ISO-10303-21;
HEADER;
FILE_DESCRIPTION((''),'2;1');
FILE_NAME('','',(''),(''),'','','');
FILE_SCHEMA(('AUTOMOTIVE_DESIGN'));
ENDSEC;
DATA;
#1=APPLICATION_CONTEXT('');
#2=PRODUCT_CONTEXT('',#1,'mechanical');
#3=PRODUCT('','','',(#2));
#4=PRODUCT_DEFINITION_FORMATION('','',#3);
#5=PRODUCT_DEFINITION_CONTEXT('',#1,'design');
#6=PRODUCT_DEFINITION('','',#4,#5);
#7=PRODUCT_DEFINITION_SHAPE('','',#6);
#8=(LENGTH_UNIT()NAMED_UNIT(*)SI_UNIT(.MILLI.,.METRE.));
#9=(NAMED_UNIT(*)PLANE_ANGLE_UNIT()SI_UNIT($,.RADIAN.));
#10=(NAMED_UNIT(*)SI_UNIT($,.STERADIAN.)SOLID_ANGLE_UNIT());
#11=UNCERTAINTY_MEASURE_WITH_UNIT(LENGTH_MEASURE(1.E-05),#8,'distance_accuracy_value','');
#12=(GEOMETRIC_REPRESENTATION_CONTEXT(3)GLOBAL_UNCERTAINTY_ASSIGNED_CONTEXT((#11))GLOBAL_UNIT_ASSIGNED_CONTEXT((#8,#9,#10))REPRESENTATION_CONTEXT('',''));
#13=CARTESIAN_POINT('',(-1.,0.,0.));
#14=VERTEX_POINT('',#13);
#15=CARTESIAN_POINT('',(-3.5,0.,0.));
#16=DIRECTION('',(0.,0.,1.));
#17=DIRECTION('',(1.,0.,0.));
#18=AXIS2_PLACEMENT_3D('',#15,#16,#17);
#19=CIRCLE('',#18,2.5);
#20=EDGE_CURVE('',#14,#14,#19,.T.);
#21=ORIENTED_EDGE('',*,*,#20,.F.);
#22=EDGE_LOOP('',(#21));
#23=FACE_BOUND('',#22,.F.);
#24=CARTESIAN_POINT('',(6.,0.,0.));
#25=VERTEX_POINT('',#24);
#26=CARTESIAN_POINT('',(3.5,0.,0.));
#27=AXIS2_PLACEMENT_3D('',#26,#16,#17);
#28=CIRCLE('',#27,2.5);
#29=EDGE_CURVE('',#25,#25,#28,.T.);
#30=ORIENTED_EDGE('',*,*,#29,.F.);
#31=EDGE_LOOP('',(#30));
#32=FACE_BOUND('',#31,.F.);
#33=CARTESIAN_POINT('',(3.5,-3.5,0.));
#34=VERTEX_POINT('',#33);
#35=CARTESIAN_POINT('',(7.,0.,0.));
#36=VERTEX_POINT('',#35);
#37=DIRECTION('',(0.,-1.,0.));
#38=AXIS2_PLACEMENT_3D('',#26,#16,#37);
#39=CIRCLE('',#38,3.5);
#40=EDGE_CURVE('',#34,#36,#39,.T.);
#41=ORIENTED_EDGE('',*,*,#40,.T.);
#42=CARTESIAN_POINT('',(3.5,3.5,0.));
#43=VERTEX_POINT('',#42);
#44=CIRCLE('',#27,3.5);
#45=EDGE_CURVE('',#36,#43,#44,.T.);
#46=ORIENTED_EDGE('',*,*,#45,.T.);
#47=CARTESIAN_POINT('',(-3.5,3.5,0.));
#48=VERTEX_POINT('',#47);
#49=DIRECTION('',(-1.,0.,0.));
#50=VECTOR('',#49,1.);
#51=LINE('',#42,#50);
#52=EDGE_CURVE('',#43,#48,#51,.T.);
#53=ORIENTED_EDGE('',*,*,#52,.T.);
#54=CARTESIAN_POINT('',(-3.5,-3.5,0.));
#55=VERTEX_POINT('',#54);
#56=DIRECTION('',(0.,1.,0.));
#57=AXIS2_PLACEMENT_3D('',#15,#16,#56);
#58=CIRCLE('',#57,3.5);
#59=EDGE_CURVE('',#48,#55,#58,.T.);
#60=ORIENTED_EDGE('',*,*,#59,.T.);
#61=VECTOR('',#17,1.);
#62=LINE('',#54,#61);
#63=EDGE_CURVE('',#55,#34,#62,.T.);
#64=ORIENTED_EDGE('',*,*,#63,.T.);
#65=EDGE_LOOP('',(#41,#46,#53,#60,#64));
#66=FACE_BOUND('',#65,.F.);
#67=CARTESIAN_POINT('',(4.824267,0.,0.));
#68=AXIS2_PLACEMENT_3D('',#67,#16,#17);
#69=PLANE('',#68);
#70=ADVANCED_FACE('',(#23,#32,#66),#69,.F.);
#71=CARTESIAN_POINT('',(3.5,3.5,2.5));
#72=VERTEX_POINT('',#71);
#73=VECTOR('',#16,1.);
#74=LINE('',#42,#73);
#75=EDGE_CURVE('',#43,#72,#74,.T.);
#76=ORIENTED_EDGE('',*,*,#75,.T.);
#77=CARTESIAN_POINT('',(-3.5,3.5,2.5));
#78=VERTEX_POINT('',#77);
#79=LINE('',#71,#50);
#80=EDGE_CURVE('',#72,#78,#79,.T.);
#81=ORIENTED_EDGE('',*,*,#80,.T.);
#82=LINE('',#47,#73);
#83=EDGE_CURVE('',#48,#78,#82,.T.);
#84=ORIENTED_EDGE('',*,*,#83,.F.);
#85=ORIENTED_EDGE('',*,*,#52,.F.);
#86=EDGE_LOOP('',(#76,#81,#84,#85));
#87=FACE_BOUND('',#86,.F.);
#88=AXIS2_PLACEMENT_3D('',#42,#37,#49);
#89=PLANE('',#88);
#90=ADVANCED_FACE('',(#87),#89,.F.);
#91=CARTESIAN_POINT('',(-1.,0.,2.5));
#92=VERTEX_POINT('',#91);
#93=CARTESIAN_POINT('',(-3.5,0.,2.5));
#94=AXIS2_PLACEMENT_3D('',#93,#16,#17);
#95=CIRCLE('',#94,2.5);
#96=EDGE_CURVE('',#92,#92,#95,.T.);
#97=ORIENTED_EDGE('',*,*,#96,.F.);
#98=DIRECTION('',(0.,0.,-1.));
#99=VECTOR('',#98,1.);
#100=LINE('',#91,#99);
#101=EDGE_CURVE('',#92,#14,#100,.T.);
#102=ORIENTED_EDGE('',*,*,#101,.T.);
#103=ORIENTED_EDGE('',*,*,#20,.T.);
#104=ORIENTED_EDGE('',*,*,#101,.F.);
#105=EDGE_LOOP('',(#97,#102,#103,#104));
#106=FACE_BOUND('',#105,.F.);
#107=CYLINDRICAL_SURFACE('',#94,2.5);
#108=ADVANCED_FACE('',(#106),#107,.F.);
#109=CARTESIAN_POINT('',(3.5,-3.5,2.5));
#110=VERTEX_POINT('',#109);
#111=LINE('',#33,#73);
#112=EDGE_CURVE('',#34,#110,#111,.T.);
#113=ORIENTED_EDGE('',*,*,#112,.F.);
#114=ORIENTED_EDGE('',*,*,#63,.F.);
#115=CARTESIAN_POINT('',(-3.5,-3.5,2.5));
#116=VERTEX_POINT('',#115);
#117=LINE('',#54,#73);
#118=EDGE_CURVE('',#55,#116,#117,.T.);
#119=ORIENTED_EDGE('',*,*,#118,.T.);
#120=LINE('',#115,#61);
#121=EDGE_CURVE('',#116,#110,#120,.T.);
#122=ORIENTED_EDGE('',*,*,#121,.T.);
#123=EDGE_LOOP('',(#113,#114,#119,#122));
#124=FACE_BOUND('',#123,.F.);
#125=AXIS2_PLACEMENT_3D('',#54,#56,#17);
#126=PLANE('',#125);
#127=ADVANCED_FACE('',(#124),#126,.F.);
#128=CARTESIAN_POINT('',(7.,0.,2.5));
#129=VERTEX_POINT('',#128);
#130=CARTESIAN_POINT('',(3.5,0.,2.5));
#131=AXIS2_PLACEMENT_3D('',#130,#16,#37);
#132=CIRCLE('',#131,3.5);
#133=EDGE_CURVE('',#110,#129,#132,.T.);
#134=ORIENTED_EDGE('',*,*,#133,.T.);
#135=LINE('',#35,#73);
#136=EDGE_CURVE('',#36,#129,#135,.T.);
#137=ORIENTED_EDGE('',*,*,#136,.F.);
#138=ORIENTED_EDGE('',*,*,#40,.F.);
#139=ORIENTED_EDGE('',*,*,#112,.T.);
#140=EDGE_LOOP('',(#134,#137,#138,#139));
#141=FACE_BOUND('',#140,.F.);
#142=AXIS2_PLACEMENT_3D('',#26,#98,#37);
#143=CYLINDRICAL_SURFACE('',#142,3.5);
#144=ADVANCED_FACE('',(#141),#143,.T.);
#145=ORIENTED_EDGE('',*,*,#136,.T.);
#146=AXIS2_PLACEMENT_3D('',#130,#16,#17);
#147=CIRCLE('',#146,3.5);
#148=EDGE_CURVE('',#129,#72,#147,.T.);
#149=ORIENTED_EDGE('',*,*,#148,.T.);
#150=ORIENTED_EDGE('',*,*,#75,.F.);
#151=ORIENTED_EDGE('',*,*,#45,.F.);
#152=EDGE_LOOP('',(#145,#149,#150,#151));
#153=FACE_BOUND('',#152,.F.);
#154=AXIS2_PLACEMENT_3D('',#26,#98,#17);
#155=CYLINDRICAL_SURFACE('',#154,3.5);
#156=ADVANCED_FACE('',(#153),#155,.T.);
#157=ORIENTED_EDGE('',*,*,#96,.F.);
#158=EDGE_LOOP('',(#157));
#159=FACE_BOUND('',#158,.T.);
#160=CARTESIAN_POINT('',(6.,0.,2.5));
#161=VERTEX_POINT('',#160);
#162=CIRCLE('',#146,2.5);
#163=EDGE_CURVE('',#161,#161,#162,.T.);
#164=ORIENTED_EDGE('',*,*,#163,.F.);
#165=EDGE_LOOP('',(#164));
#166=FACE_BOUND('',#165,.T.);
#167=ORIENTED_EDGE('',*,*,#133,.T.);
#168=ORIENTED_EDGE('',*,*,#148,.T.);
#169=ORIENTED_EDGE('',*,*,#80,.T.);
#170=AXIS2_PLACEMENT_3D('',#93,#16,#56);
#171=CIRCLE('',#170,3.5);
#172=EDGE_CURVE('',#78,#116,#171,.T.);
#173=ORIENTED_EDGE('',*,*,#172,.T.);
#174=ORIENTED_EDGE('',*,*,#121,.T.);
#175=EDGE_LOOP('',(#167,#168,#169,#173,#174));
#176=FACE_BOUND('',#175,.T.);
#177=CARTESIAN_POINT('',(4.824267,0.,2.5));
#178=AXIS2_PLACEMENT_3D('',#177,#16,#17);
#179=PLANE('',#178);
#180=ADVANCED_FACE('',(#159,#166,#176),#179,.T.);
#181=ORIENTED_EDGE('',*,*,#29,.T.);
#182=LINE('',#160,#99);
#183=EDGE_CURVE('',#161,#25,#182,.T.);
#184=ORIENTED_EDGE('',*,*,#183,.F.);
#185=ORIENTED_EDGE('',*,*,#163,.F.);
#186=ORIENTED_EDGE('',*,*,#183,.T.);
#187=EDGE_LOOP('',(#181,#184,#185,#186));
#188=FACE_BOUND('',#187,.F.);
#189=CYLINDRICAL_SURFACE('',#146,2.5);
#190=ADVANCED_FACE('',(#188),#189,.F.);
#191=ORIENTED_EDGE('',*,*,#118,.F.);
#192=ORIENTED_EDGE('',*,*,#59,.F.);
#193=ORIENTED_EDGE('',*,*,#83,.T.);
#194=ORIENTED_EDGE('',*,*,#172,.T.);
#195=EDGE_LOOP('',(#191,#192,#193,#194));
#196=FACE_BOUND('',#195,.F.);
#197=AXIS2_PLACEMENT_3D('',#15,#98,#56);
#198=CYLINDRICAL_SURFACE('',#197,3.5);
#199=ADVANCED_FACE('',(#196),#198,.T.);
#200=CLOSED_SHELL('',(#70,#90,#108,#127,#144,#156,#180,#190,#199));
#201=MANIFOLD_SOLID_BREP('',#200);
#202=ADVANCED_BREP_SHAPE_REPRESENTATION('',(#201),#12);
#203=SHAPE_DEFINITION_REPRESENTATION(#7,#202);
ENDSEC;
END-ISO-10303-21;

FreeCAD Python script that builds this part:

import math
import FreeCAD as App
import Part
import Sketcher
from FreeCAD import Vector

doc = App.newDocument("Part")
body = doc.addObject("PartDesign::Body", "Body")

# Sketch on XY plane
sketch1 = body.newObject("Sketcher::SketchObject", "Sketch")
sketch1.AttachmentSupport = (doc.getObject("XY_Plane"), [""])
sketch1.MapMode = "FlatFace"
sketch1.addGeometry(Part.ArcOfCircle(Part.Circle(Vector(3.5, 0, 0), Vector(0, 0, 1), 3.5), math.radians(-90), math.radians(0)), False)
sketch1.addGeometry(Part.ArcOfCircle(Part.Circle(Vector(3.5, 0, 0), Vector(0, 0, 1), 3.5), math.radians(0), math.radians(90)), False)
sketch1.addGeometry(Part.LineSegment(Vector(3.5, 3.5, 0), Vector(-3.5, 3.5, 0)), False)
sketch1.addGeometry(Part.ArcOfCircle(Part.Circle(Vector(-3.5, 0, 0), Vector(0, 0, 1), 3.5), math.radians(90), math.radians(270)), False)
sketch1.addGeometry(Part.LineSegment(Vector(-3.5, -3.5, 0), Vector(3.5, -3.5, 0)), False)
sketch1.addConstraint(Sketcher.Constraint("Tangent", 0, 2, 1, 1))
sketch1.addConstraint(Sketcher.Constraint("Tangent", 1, 2, 2, 1))
sketch1.addConstraint(Sketcher.Constraint("Tangent", 2, 2, 3, 1))
sketch1.addConstraint(Sketcher.Constraint("Tangent", 3, 2, 4, 1))
sketch1.addConstraint(Sketcher.Constraint("Tangent", 4, 2, 0, 1))
sketch1.addConstraint(Sketcher.Constraint("Horizontal", 2))
sketch1.addConstraint(Sketcher.Constraint("Horizontal", 4))
sketch1.addConstraint(Sketcher.Constraint("Equal", 0, 1))
sketch1.addConstraint(Sketcher.Constraint("Symmetric", 0, 3, 3, 3, -1, 1))
sketch1.addConstraint(Sketcher.Constraint("PointOnObject", 0, 2, -1))
sketch1.addConstraint(Sketcher.Constraint("Radius", 0, 3.5))
sketch1.addConstraint(Sketcher.Constraint("DistanceX", 2, 2, 2, 1, 7.0))
pad1 = body.newObject("PartDesign::Pad", "Pad")
pad1.Profile = sketch1
pad1.Length = 2.5

# Sketch on XY plane
sketch2 = body.newObject("Sketcher::SketchObject", "Sketch001")
sketch2.AttachmentSupport = (doc.getObject("XY_Plane"), [""])
sketch2.MapMode = "FlatFace"
sketch2.AttachmentOffset = App.Placement(Vector(0, 0, 2.5), App.Rotation())
sketch2.addGeometry(Part.Circle(Vector(-3.5, 0, 0), Vector(0, 0, 1), 2.5), False)
sketch2.addGeometry(Part.Circle(Vector(3.5, 0, 0), Vector(0, 0, 1), 2.5), False)
sketch2.addConstraint(Sketcher.Constraint("Equal", 0, 1))
sketch2.addConstraint(Sketcher.Constraint("Symmetric", 0, 3, 1, 3, -1, 1))
sketch2.addConstraint(Sketcher.Constraint("PointOnObject", 0, 3, -1))
sketch2.addConstraint(Sketcher.Constraint("Diameter", 0, 5.0))
sketch2.addConstraint(Sketcher.Constraint("DistanceX", 0, 3, 1, 3, 7.0))
pocket1 = body.newObject("PartDesign::Pocket", "Pocket")
pocket1.Profile = sketch2
pocket1.Length = 25

doc.recompute()
